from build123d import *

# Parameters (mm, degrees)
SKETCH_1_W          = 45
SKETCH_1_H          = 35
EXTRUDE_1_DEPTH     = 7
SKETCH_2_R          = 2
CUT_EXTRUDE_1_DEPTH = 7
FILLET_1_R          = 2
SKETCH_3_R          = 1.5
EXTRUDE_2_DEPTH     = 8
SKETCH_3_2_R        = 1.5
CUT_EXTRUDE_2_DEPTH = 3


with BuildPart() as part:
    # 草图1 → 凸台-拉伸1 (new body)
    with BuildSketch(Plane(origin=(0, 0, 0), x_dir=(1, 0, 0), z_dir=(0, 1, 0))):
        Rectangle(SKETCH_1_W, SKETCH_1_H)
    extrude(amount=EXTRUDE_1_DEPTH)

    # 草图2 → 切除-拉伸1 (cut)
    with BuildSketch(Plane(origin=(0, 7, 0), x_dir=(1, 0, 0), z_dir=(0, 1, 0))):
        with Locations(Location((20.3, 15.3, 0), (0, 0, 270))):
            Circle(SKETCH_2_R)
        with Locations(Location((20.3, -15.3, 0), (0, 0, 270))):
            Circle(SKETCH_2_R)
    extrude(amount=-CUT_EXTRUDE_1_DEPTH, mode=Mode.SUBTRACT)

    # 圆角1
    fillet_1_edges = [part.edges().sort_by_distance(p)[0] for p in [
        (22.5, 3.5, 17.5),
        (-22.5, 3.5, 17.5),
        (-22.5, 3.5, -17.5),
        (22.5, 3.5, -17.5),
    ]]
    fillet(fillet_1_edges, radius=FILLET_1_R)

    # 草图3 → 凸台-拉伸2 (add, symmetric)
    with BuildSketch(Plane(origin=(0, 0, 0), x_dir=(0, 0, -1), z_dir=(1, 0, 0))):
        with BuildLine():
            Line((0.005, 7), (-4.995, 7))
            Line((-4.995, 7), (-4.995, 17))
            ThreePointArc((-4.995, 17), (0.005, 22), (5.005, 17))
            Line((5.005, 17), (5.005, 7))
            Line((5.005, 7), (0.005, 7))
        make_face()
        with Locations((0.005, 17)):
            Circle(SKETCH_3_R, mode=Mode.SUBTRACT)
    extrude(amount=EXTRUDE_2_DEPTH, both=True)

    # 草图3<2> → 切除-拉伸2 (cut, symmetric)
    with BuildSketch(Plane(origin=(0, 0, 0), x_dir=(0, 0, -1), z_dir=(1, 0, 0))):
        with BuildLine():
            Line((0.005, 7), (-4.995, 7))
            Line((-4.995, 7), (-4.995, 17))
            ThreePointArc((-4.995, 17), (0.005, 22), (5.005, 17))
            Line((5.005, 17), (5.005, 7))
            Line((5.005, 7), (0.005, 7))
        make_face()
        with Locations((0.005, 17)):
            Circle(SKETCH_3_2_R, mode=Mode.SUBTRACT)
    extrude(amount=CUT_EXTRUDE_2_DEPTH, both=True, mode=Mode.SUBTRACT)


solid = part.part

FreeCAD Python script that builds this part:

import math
import FreeCAD as App
import Part
import Sketcher


def edges_at(feature, points):
    """Names of the edges that pass closest to the given points."""
    edges = feature.Shape.Edges
    near = lambda p: min(range(len(edges)), key=lambda i: edges[i].distToShape(Part.Vertex(*p))[0])
    return sorted({f"Edge{near(p) + 1}" for p in points})

doc = App.newDocument("Part")
body = doc.addObject("PartDesign::Body", "Body")

sketch1 = doc.addObject("Sketcher::SketchObject", "Sketch")
body.addObject(sketch1)
sketch1.AttachmentSupport = (doc.XZ_Plane, [""])
sketch1.MapMode = "FlatFace"
sketch1.addGeometry([
    Part.LineSegment(App.Vector(-22, -18, 0), App.Vector(-22, 18, 0)),
    Part.LineSegment(App.Vector(-22, 18, 0), App.Vector(22, 18, 0)),
    Part.LineSegment(App.Vector(22, 18, 0), App.Vector(22, -18, 0)),
    Part.LineSegment(App.Vector(22, -18, 0), App.Vector(-22, -18, 0)),
], False)
sketch1.addConstraint([
    Sketcher.Constraint("Coincident", 0, 2, 1, 1),
    Sketcher.Constraint("Coincident", 1, 2, 2, 1),
    Sketcher.Constraint("Coincident", 2, 2, 3, 1),
    Sketcher.Constraint("Coincident", 3, 2, 0, 1),
    Sketcher.Constraint("Vertical", 0),
    Sketcher.Constraint("Horizontal", 1),
    Sketcher.Constraint("Vertical", 2),
    Sketcher.Constraint("Horizontal", 3),
    Sketcher.Constraint("Symmetric", 0, 2, 2, 2, -1, 1),
    Sketcher.Constraint("DistanceX", 1, 1, 1, 2, 45.0),
    Sketcher.Constraint("DistanceY", 0, 1, 0, 2, 35.0),
])
pad1 = doc.addObject("PartDesign::Pad", "Pad")
body.addObject(pad1)
pad1.Profile = sketch1
pad1.Length = 7
pad1.Reversed = True

sketch2 = doc.addObject("Sketcher::SketchObject", "Sketch001")
body.addObject(sketch2)
sketch2.AttachmentSupport = (doc.XZ_Plane, [""])
sketch2.MapMode = "FlatFace"
sketch2.AttachmentOffset = App.Placement(App.Vector(0, 0, -7), App.Rotation())
sketch2.addGeometry([
    Part.Circle(App.Vector(20.3, -15.3, 0), App.Vector(0, 0, 1), 2),
    Part.Circle(App.Vector(20.3, 15.3, 0), App.Vector(0, 0, 1), 2),
], False)
sketch2.addConstraint([
    Sketcher.Constraint("Equal", 0, 1),
    Sketcher.Constraint("Symmetric", 0, 3, 1, 3, -1),
    Sketcher.Constraint("Diameter", 0, 4.0),
    Sketcher.Constraint("DistanceX", -1, 1, 0, 3, 20.3),
    Sketcher.Constraint("DistanceY", 0, 3, -1, 1, 15.3),
])
pocket1 = doc.addObject("PartDesign::Pocket", "Pocket")
body.addObject(pocket1)
pocket1.Profile = sketch2
pocket1.Length = 7
pocket1.Reversed = True
doc.recompute()

fillet = doc.addObject("PartDesign::Fillet", "Fillet")
body.addObject(fillet)
fillet.Base = (pocket1, edges_at(pocket1, [
    (22.5, 3.5, 17.5),
    (-22.5, 3.5, 17.5),
    (-22.5, 3.5, -17.5),
    (22.5, 3.5, -17.5),
]))
fillet.Radius = 2

sketch3 = doc.addObject("Sketcher::SketchObject", "Sketch002")
body.addObject(sketch3)
sketch3.AttachmentSupport = (doc.YZ_Plane, [""])
sketch3.MapMode = "FlatFace"
sketch3.addGeometry([
    Part.LineSegment(App.Vector(17, 5, 0), App.Vector(7, 5, 0)),
    Part.LineSegment(App.Vector(7, 5, 0), App.Vector(7, -5, 0)),
    Part.LineSegment(App.Vector(7, -5, 0), App.Vector(17, -5, 0)),
    Part.ArcOfCircle(Part.Circle(App.Vector(17, 0, 0), App.Vector(0, 0, 1), 5), math.radians(-90), math.radians(90)),
    Part.Circle(App.Vector(17, 0, 0), App.Vector(0, 0, 1), 1.5),
], False)
sketch3.addConstraint([
    Sketcher.Constraint("Coincident", 0, 2, 1, 1),
    Sketcher.Constraint("Coincident", 1, 2, 2, 1),
    Sketcher.Constraint("Tangent", 2, 2, 3, 1),
    Sketcher.Constraint("Tangent", 3, 2, 0, 1),
    Sketcher.Constraint("Horizontal", 0),
    Sketcher.Constraint("Vertical", 1),
    Sketcher.Constraint("Horizontal", 2),
    Sketcher.Constraint("Coincident", 4, 3, 3, 3),
    Sketcher.Constraint("Equal", 2, 1),
    Sketcher.Constraint("Diameter", 4, 3.0),
    Sketcher.Constraint("Radius", 3, 5.0),
    Sketcher.Constraint("DistanceX", -1, 1, 3, 3, 17.0),
    Sketcher.Constraint("DistanceY", 3, 3, -1, 1, 0.005),
])
pad2 = doc.addObject("PartDesign::Pad", "Pad001")
body.addObject(pad2)
pad2.Profile = sketch3
pad2.Length = 16
pad2.Midplane = True

sketch4 = doc.addObject("Sketcher::SketchObject", "Sketch003")
body.addObject(sketch4)
sketch4.AttachmentSupport = (doc.YZ_Plane, [""])
sketch4.MapMode = "FlatFace"
sketch4.addGeometry([
    Part.LineSegment(App.Vector(17, 5, 0), App.Vector(7, 5, 0)),
    Part.LineSegment(App.Vector(7, 5, 0), App.Vector(7, -5, 0)),
    Part.LineSegment(App.Vector(7, -5, 0), App.Vector(17, -5, 0)),
    Part.ArcOfCircle(Part.Circle(App.Vector(17, 0, 0), App.Vector(0, 0, 1), 5), math.radians(-90), math.radians(90)),
    Part.Circle(App.Vector(17, 0, 0), App.Vector(0, 0, 1), 1.5),
], False)
sketch4.addConstraint([
    Sketcher.Constraint("Coincident", 0, 2, 1, 1),
    Sketcher.Constraint("Coincident", 1, 2, 2, 1),
    Sketcher.Constraint("Tangent", 2, 2, 3, 1),
    Sketcher.Constraint("Tangent", 3, 2, 0, 1),
    Sketcher.Constraint("Horizontal", 0),
    Sketcher.Constraint("Vertical", 1),
    Sketcher.Constraint("Horizontal", 2),
    Sketcher.Constraint("Coincident", 4, 3, 3, 3),
    Sketcher.Constraint("Equal", 2, 1),
    Sketcher.Constraint("Diameter", 4, 3.0),
    Sketcher.Constraint("Radius", 3, 5.0),
    Sketcher.Constraint("DistanceX", -1, 1, 3, 3, 17.0),
    Sketcher.Constraint("DistanceY", 3, 3, -1, 1, 0.005),
])
pocket2 = doc.addObject("PartDesign::Pocket", "Pocket001")
body.addObject(pocket2)
pocket2.Profile = sketch4
pocket2.Length = 6
pocket2.Midplane = True

doc.recompute()
